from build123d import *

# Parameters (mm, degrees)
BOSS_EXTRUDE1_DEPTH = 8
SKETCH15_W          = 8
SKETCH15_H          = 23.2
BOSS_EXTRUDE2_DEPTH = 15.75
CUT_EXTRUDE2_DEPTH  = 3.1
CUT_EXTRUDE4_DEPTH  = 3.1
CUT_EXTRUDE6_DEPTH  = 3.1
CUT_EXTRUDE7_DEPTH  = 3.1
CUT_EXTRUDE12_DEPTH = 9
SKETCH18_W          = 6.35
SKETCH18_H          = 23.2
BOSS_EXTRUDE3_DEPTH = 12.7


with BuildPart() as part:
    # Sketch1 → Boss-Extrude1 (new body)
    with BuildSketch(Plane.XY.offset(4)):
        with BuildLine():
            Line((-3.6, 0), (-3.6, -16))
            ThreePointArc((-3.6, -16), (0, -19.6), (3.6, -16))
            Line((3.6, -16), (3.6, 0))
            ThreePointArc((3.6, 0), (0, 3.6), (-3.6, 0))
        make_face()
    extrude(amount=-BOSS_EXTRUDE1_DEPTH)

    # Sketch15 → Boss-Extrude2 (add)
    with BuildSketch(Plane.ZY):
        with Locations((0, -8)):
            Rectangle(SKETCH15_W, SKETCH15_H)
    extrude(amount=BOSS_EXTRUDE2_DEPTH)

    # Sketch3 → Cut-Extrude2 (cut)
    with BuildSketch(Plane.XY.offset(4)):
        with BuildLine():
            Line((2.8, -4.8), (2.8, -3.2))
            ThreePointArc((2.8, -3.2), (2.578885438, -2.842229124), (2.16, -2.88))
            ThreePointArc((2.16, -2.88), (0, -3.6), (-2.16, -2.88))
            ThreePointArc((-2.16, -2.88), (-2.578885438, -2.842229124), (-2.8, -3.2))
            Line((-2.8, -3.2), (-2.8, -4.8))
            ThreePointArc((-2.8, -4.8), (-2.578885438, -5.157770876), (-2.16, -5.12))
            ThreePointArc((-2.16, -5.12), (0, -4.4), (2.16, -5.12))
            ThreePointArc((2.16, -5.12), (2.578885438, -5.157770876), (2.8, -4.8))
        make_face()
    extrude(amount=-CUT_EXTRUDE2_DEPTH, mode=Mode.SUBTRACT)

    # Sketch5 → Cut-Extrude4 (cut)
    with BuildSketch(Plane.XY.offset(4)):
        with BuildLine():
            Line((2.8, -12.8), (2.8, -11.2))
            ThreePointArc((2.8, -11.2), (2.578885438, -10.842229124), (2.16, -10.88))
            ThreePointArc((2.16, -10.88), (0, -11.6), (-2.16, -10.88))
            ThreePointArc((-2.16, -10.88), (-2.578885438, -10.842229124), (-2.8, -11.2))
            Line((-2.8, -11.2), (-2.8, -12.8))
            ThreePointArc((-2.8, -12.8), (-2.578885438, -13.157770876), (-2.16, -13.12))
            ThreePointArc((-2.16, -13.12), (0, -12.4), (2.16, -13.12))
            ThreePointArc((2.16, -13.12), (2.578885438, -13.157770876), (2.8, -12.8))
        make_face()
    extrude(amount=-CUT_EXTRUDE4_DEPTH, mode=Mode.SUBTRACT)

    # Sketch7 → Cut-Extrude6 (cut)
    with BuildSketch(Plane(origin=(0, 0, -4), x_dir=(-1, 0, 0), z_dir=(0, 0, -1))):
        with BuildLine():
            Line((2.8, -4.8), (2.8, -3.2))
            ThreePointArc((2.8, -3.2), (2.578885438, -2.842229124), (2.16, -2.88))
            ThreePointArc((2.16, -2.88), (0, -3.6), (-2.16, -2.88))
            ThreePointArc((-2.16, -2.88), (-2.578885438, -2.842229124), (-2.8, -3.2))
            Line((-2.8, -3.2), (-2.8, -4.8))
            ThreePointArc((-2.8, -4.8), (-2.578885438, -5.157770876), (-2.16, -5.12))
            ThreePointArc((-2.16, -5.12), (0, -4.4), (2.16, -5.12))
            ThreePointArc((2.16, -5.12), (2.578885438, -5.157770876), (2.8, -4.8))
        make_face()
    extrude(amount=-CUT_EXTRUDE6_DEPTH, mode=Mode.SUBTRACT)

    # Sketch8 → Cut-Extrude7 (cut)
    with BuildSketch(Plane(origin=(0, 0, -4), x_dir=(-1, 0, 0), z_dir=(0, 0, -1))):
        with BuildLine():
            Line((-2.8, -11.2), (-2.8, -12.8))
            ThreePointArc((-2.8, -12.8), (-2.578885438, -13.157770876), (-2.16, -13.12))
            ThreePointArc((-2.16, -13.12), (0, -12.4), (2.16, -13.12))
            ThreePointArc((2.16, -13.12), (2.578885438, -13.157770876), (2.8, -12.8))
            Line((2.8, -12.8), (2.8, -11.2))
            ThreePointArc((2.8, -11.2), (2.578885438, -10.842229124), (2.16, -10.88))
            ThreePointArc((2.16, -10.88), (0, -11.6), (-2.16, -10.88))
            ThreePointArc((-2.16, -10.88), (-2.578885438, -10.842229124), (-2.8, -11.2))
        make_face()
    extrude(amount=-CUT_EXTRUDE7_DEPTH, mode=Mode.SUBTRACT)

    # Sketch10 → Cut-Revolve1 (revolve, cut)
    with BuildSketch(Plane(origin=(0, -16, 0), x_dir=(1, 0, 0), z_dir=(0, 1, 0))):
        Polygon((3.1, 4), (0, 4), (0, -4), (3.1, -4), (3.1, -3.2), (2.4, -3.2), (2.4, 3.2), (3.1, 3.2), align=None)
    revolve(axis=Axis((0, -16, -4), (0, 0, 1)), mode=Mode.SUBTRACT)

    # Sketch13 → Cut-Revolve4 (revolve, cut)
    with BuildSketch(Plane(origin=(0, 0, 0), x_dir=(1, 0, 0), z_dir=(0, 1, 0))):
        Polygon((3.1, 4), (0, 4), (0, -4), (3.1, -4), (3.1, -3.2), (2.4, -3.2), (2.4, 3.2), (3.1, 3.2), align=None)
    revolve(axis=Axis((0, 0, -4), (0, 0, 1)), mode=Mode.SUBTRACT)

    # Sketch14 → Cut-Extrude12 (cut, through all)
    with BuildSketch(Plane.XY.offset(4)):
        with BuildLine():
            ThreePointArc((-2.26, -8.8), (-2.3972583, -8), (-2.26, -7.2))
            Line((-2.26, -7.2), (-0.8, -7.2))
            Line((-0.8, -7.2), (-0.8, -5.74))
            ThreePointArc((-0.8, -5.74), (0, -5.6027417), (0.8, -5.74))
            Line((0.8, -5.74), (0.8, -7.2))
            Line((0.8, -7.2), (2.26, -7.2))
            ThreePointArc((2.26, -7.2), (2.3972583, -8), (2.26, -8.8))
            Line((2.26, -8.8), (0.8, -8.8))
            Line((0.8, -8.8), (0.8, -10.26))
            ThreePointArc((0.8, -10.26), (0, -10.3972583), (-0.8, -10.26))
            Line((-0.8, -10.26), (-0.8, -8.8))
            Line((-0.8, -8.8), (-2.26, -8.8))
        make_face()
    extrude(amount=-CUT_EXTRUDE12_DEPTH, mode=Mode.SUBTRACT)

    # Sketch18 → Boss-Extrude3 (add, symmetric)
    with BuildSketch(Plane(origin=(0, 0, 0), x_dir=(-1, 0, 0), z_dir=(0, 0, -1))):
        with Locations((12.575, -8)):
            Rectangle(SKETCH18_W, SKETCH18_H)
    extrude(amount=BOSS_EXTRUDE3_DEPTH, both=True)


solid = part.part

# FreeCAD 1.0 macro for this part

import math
import FreeCAD as App
import Part
import Sketcher

V = App.Vector
Q = App.Units.Quantity

doc = App.newDocument("Part")
params = doc.addObject("Spreadsheet::Sheet", "Params")
for row, (alias, value) in enumerate([
    ("sketch1_radius", "3.6 mm"),
    ("sketch1_height", "16 mm"),
    ("pad1_length", "8 mm"),
    ("sketch2_height", "8 mm"),
    ("sketch2_width", "23.2 mm"),
    ("pad2_length", "15.75 mm"),
    ("sketch3_radius", "0.4 mm"),
    ("sketch3_radius2", "3.6 mm"),
    ("sketch3_height", "1.6 mm"),
    ("pocket1_length", "3.1 mm"),
    ("sketch4_radius", "0.4 mm"),
    ("sketch4_radius2", "3.6 mm"),
    ("sketch4_height", "1.6 mm"),
    ("pocket2_length", "3.1 mm"),
    ("sketch5_radius", "0.4 mm"),
    ("sketch5_radius2", "3.6 mm"),
    ("sketch5_height", "1.6 mm"),
    ("pocket3_length", "3.1 mm"),
    ("sketch6_radius", "0.4 mm"),
    ("sketch6_radius2", "3.6 mm"),
    ("sketch6_height", "1.6 mm"),
    ("pocket4_length", "3.1 mm"),
    ("sketch7_height", "8 mm"),
    ("sketch7_width", "3.1 mm"),
    ("sketch7_width2", "0.7 mm"),
    ("sketch7_height2", "0.8 mm"),
    ("groove_angle", "360 deg"),
    ("sketch8_height", "8 mm"),
    ("sketch8_width", "3.1 mm"),
    ("sketch8_width2", "0.7 mm"),
    ("sketch8_height2", "0.8 mm"),
    ("groove2_angle", "360 deg"),
    ("sketch9_radius", "2.4 mm"),
    ("sketch9_width", "1.46 mm"),
    ("sketch10_height", "23.2 mm"),
    ("sketch10_width", "6.35 mm"),
    ("pad3_length", "25.4 mm"),
], start=1):
    params.set(f"A{row}", alias)
    params.set(f"B{row}", "=" + value)
    params.setAlias(f"B{row}", alias)

body = doc.addObject("PartDesign::Body", "Body")

# Sketch on XY plane
sketch1 = doc.addObject("Sketcher::SketchObject", "Sketch")
body.addObject(sketch1)
sketch1.AttachmentSupport = (doc.XY_Plane, [""])
sketch1.MapMode = "FlatFace"
sketch1.AttachmentOffset = App.Placement(V(0, 0, 4), App.Rotation())
sketch1.addGeometry([
    Part.LineSegment(V(-3.6, 0, 0), V(-3.6, -16, 0)),
    Part.ArcOfCircle(Part.Circle(V(0, -16, 0), V(0, 0, 1), 3.6), math.radians(180), math.radians(360)),
    Part.LineSegment(V(3.6, -16, 0), V(3.6, 0, 0)),
    Part.ArcOfCircle(Part.Circle(V(0, 0, 0), V(0, 0, 1), 3.6), math.radians(0), math.radians(180)),
], False)
sketch1.addConstraint([
    Sketcher.Constraint("Tangent", 0, 2, 1, 1),
    Sketcher.Constraint("Tangent", 1, 2, 2, 1),
    Sketcher.Constraint("Tangent", 2, 2, 3, 1),
    Sketcher.Constraint("Tangent", 3, 2, 0, 1),
    Sketcher.Constraint("Vertical", 0),
    Sketcher.Constraint("Vertical", 2),
    Sketcher.Constraint("Coincident", 3, 3, -1, 1),
    Sketcher.Constraint("Radius", 1, Q("3.6 mm")),
    Sketcher.Constraint("DistanceY", 0, 2, 0, 1, Q("16 mm")),
])
sketch1.setExpression("Constraints[7]", "Params.sketch1_radius")
sketch1.setExpression("Constraints[8]", "Params.sketch1_height")
pad1 = doc.addObject("PartDesign::Pad", "Pad")
body.addObject(pad1)
pad1.Profile = sketch1
pad1.setExpression("Length", "Params.pad1_length")
pad1.Reversed = True

# Sketch on YZ plane
sketch2 = doc.addObject("Sketcher::SketchObject", "Sketch001")
body.addObject(sketch2)
sketch2.AttachmentSupport = (doc.YZ_Plane, [""])
sketch2.MapMode = "FlatFace"
sketch2.addGeometry([
    Part.LineSegment(V(3.6, -4, 0), V(-19.6, -4, 0)),
    Part.LineSegment(V(-19.6, -4, 0), V(-19.6, 4, 0)),
    Part.LineSegment(V(-19.6, 4, 0), V(3.6, 4, 0)),
    Part.LineSegment(V(3.6, 4, 0), V(3.6, -4, 0)),
], False)
sketch2.addConstraint([
    Sketcher.Constraint("Coincident", 0, 2, 1, 1),
    Sketcher.Constraint("Coincident", 1, 2, 2, 1),
    Sketcher.Constraint("Coincident", 2, 2, 3, 1),
    Sketcher.Constraint("Coincident", 3, 2, 0, 1),
    Sketcher.Constraint("Horizontal", 0),
    Sketcher.Constraint("Vertical", 1),
    Sketcher.Constraint("Horizontal", 2),
    Sketcher.Constraint("Vertical", 3),
    Sketcher.Constraint("DistanceY", 1, 1, 1, 2, Q("8 mm")),
    Sketcher.Constraint("DistanceX", 0, 2, 0, 1, Q("23.2 mm")),
    Sketcher.Constraint("DistanceY", 0, 2, -1, 1, Q("4 mm")),
    Sketcher.Constraint("DistanceX", 0, 2, -1, 1, Q("19.6 mm")),
])
sketch2.setExpression("Constraints[8]", "Params.sketch2_height")
sketch2.setExpression("Constraints[9]", "Params.sketch2_width")
pad2 = doc.addObject("PartDesign::Pad", "Pad001")
body.addObject(pad2)
pad2.Profile = sketch2
pad2.setExpression("Length", "Params.pad2_length")
pad2.Reversed = True

# Sketch on XY plane
sketch3 = doc.addObject("Sketcher::SketchObject", "Sketch002")
body.addObject(sketch3)
sketch3.AttachmentSupport = (doc.XY_Plane, [""])
sketch3.MapMode = "FlatFace"
sketch3.AttachmentOffset = App.Placement(V(0, 0, 4), App.Rotation())
sketch3.addGeometry([
    Part.LineSegment(V(2.8, -4.8, 0), V(2.8, -3.2, 0)),  # 0
    Part.ArcOfCircle(Part.Circle(V(2.4, -3.2, 0), V(0, 0, 1), 0.4), math.radians(0), math.radians(126.869898)),  # 1
    Part.ArcOfCircle(Part.Circle(V(0, 0, 0), V(0, 0, 1), 3.6), math.radians(-126.869898), math.radians(-53.130102)),  # 2
    Part.ArcOfCircle(Part.Circle(V(-2.4, -3.2, 0), V(0, 0, 1), 0.4), math.radians(53.130102), math.radians(180)),  # 3
    Part.LineSegment(V(-2.8, -3.2, 0), V(-2.8, -4.8, 0)),  # 4
    Part.ArcOfCircle(Part.Circle(V(-2.4, -4.8, 0), V(0, 0, 1), 0.4), math.radians(-180), math.radians(-53.130102)),  # 5
    Part.ArcOfCircle(Part.Circle(V(0, -8, 0), V(0, 0, 1), 3.6), math.radians(53.130102), math.radians(126.869898)),  # 6
    Part.ArcOfCircle(Part.Circle(V(2.4, -4.8, 0), V(0, 0, 1), 0.4), math.radians(-126.869898), math.radians(0)),  # 7
], False)
sketch3.addConstraint([
    Sketcher.Constraint("Tangent", 0, 2, 1, 1),
    Sketcher.Constraint("Tangent", 1, 2, 2, 2),
    Sketcher.Constraint("Tangent", 2, 1, 3, 1),
    Sketcher.Constraint("Tangent", 3, 2, 4, 1),
    Sketcher.Constraint("Tangent", 4, 2, 5, 1),
    Sketcher.Constraint("Tangent", 5, 2, 6, 2),
    Sketcher.Constraint("Tangent", 6, 1, 7, 1),
    Sketcher.Constraint("Tangent", 7, 2, 0, 1),
    Sketcher.Constraint("Vertical", 0),
    Sketcher.Constraint("Vertical", 4),
    Sketcher.Constraint("Coincident", 2, 3, -1, 1),
    Sketcher.Constraint("Equal", 1, 3),
    Sketcher.Constraint("Equal", 3, 5),
    Sketcher.Constraint("Equal", 2, 6),
    Sketcher.Constraint("Equal", 5, 7),
    Sketcher.Constraint("Symmetric", 5, 3, 7, 3, -2),
    Sketcher.Constraint("Radius", 1, Q("0.4 mm")),
    Sketcher.Constraint("Radius", 2, Q("3.6 mm")),
    Sketcher.Constraint("DistanceY", 0, 1, 0, 2, Q("1.6 mm")),
    Sketcher.Constraint("DistanceY", 6, 3, -1, 1, Q("8 mm")),
])
sketch3.setExpression("Constraints[16]", "Params.sketch3_radius")
sketch3.setExpression("Constraints[17]", "Params.sketch3_radius2")
sketch3.setExpression("Constraints[18]", "Params.sketch3_height")
pocket1 = doc.addObject("PartDesign::Pocket", "Pocket")
body.addObject(pocket1)
pocket1.Profile = sketch3
pocket1.setExpression("Length", "Params.pocket1_length")

# Sketch on XY plane
sketch4 = doc.addObject("Sketcher::SketchObject", "Sketch003")
body.addObject(sketch4)
sketch4.AttachmentSupport = (doc.XY_Plane, [""])
sketch4.MapMode = "FlatFace"
sketch4.AttachmentOffset = App.Placement(V(0, 0, 4), App.Rotation())
sketch4.addGeometry([
    Part.LineSegment(V(2.8, -12.8, 0), V(2.8, -11.2, 0)),  # 0
    Part.ArcOfCircle(Part.Circle(V(2.4, -11.2, 0), V(0, 0, 1), 0.4), math.radians(0), math.radians(126.869898)),  # 1
    Part.ArcOfCircle(Part.Circle(V(0, -8, 0), V(0, 0, 1), 3.6), math.radians(-126.869898), math.radians(-53.130102)),  # 2
    Part.ArcOfCircle(Part.Circle(V(-2.4, -11.2, 0), V(0, 0, 1), 0.4), math.radians(53.130102), math.radians(180)),  # 3
    Part.LineSegment(V(-2.8, -11.2, 0), V(-2.8, -12.8, 0)),  # 4
    Part.ArcOfCircle(Part.Circle(V(-2.4, -12.8, 0), V(0, 0, 1), 0.4), math.radians(-180), math.radians(-53.130102)),  # 5
    Part.ArcOfCircle(Part.Circle(V(0, -16, 0), V(0, 0, 1), 3.6), math.radians(53.130102), math.radians(126.869898)),  # 6
    Part.ArcOfCircle(Part.Circle(V(2.4, -12.8, 0), V(0, 0, 1), 0.4), math.radians(-126.869898), math.radians(0)),  # 7
], False)
sketch4.addConstraint([
    Sketcher.Constraint("Tangent", 0, 2, 1, 1),
    Sketcher.Constraint("Tangent", 1, 2, 2, 2),
    Sketcher.Constraint("Tangent", 2, 1, 3, 1),
    Sketcher.Constraint("Tangent", 3, 2, 4, 1),
    Sketcher.Constraint("Tangent", 4, 2, 5, 1),
    Sketcher.Constraint("Tangent", 5, 2, 6, 2),
    Sketcher.Constraint("Tangent", 6, 1, 7, 1),
    Sketcher.Constraint("Tangent", 7, 2, 0, 1),
    Sketcher.Constraint("Vertical", 0),
    Sketcher.Constraint("Vertical", 4),
    Sketcher.Constraint("Equal", 1, 3),
    Sketcher.Constraint("Equal", 3, 5),
    Sketcher.Constraint("Equal", 2, 6),
    Sketcher.Constraint("Equal", 5, 7),
    Sketcher.Constraint("Symmetric", 1, 3, 3, 3, -2),
    Sketcher.Constraint("PointOnObject", 6, 3, -2),
    Sketcher.Constraint("Radius", 1, Q("0.4 mm")),
    Sketcher.Constraint("Radius", 2, Q("3.6 mm")),
    Sketcher.Constraint("DistanceY", 0, 1, 0, 2, Q("1.6 mm")),
    Sketcher.Constraint("DistanceY", 2, 3, -1, 1, Q("8 mm")),
    Sketcher.Constraint("DistanceY", 6, 3, -1, 1, Q("16 mm")),
])
sketch4.setExpression("Constraints[16]", "Params.sketch4_radius")
sketch4.setExpression("Constraints[17]", "Params.sketch4_radius2")
sketch4.setExpression("Constraints[18]", "Params.sketch4_height")
pocket2 = doc.addObject("PartDesign::Pocket", "Pocket001")
body.addObject(pocket2)
pocket2.Profile = sketch4
pocket2.setExpression("Length", "Params.pocket2_length")

# Sketch on XY plane
sketch5 = doc.addObject("Sketcher::SketchObject", "Sketch004")
body.addObject(sketch5)
sketch5.AttachmentSupport = (doc.XY_Plane, [""])
sketch5.MapMode = "FlatFace"
sketch5.AttachmentOffset = App.Placement(V(0, 0, -4), App.Rotation())
sketch5.addGeometry([
    Part.LineSegment(V(-2.8, -4.8, 0), V(-2.8, -3.2, 0)),  # 0
    Part.ArcOfCircle(Part.Circle(V(-2.4, -3.2, 0), V(0, 0, 1), 0.4), math.radians(53.130102), math.radians(180)),  # 1
    Part.ArcOfCircle(Part.Circle(V(0, 0, 0), V(0, 0, 1), 3.6), math.radians(-126.869898), math.radians(-53.130102)),  # 2
    Part.ArcOfCircle(Part.Circle(V(2.4, -3.2, 0), V(0, 0, 1), 0.4), math.radians(0), math.radians(126.869898)),  # 3
    Part.LineSegment(V(2.8, -3.2, 0), V(2.8, -4.8, 0)),  # 4
    Part.ArcOfCircle(Part.Circle(V(2.4, -4.8, 0), V(0, 0, 1), 0.4), math.radians(-126.869898), math.radians(0)),  # 5
    Part.ArcOfCircle(Part.Circle(V(0, -8, 0), V(0, 0, 1), 3.6), math.radians(53.130102), math.radians(126.869898)),  # 6
    Part.ArcOfCircle(Part.Circle(V(-2.4, -4.8, 0), V(0, 0, 1), 0.4), math.radians(-180), math.radians(-53.130102)),  # 7
], False)
sketch5.addConstraint([
    Sketcher.Constraint("Tangent", 0, 2, 1, 2),
    Sketcher.Constraint("Tangent", 1, 1, 2, 1),
    Sketcher.Constraint("Tangent", 2, 2, 3, 2),
    Sketcher.Constraint("Tangent", 3, 1, 4, 1),
    Sketcher.Constraint("Tangent", 4, 2, 5, 2),
    Sketcher.Constraint("Tangent", 5, 1, 6, 1),
    Sketcher.Constraint("Tangent", 6, 2, 7, 2),
    Sketcher.Constraint("Tangent", 7, 1, 0, 1),
    Sketcher.Constraint("Vertical", 0),
    Sketcher.Constraint("Vertical", 4),
    Sketcher.Constraint("Coincident", 2, 3, -1, 1),
    Sketcher.Constraint("Equal", 1, 3),
    Sketcher.Constraint("Equal", 3, 5),
    Sketcher.Constraint("Equal", 2, 6),
    Sketcher.Constraint("Equal", 5, 7),
    Sketcher.Constraint("Symmetric", 5, 3, 7, 3, -2),
    Sketcher.Constraint("Radius", 1, Q("0.4 mm")),
    Sketcher.Constraint("Radius", 2, Q("3.6 mm")),
    Sketcher.Constraint("DistanceY", 0, 1, 0, 2, Q("1.6 mm")),
    Sketcher.Constraint("DistanceY", 6, 3, -1, 1, Q("8 mm")),
])
sketch5.setExpression("Constraints[16]", "Params.sketch5_radius")
sketch5.setExpression("Constraints[17]", "Params.sketch5_radius2")
sketch5.setExpression("Constraints[18]", "Params.sketch5_height")
pocket3 = doc.addObject("PartDesign::Pocket", "Pocket002")
body.addObject(pocket3)
pocket3.Profile = sketch5
pocket3.setExpression("Length", "Params.pocket3_length")
pocket3.Reversed = True

# Sketch on XY plane
sketch6 = doc.addObject("Sketcher::SketchObject", "Sketch005")
body.addObject(sketch6)
sketch6.AttachmentSupport = (doc.XY_Plane, [""])
sketch6.MapMode = "FlatFace"
sketch6.AttachmentOffset = App.Placement(V(0, 0, -4), App.Rotation())
sketch6.addGeometry([
    Part.LineSegment(V(2.8, -11.2, 0), V(2.8, -12.8, 0)),  # 0
    Part.ArcOfCircle(Part.Circle(V(2.4, -12.8, 0), V(0, 0, 1), 0.4), math.radians(-126.869898), math.radians(0)),  # 1
    Part.ArcOfCircle(Part.Circle(V(0, -16, 0), V(0, 0, 1), 3.6), math.radians(53.130102), math.radians(126.869898)),  # 2
    Part.ArcOfCircle(Part.Circle(V(-2.4, -12.8, 0), V(0, 0, 1), 0.4), math.radians(-180), math.radians(-53.130102)),  # 3
    Part.LineSegment(V(-2.8, -12.8, 0), V(-2.8, -11.2, 0)),  # 4
    Part.ArcOfCircle(Part.Circle(V(-2.4, -11.2, 0), V(0, 0, 1), 0.4), math.radians(53.130102), math.radians(180)),  # 5
    Part.ArcOfCircle(Part.Circle(V(0, -8, 0), V(0, 0, 1), 3.6), math.radians(-126.869898), math.radians(-53.130102)),  # 6
    Part.ArcOfCircle(Part.Circle(V(2.4, -11.2, 0), V(0, 0, 1), 0.4), math.radians(0), math.radians(126.869898)),  # 7
], False)
sketch6.addConstraint([
    Sketcher.Constraint("Tangent", 0, 2, 1, 2),
    Sketcher.Constraint("Tangent", 1, 1, 2, 1),
    Sketcher.Constraint("Tangent", 2, 2, 3, 2),
    Sketcher.Constraint("Tangent", 3, 1, 4, 1),
    Sketcher.Constraint("Tangent", 4, 2, 5, 2),
    Sketcher.Constraint("Tangent", 5, 1, 6, 1),
    Sketcher.Constraint("Tangent", 6, 2, 7, 2),
    Sketcher.Constraint("Tangent", 7, 1, 0, 1),
    Sketcher.Constraint("Vertical", 0),
    Sketcher.Constraint("Vertical", 4),
    Sketcher.Constraint("Equal", 1, 3),
    Sketcher.Constraint("Equal", 3, 5),
    Sketcher.Constraint("Equal", 2, 6),
    Sketcher.Constraint("Equal", 5, 7),
    Sketcher.Constraint("Symmetric", 1, 3, 3, 3, -2),
    Sketcher.Constraint("PointOnObject", 6, 3, -2),
    Sketcher.Constraint("Radius", 1, Q("0.4 mm")),
    Sketcher.Constraint("Radius", 2, Q("3.6 mm")),
    Sketcher.Constraint("DistanceY", 0, 2, 0, 1, Q("1.6 mm")),
    Sketcher.Constraint("DistanceY", 2, 3, -1, 1, Q("16 mm")),
    Sketcher.Constraint("DistanceY", 6, 3, -1, 1, Q("8 mm")),
])
sketch6.setExpression("Constraints[16]", "Params.sketch6_radius")
sketch6.setExpression("Constraints[17]", "Params.sketch6_radius2")
sketch6.setExpression("Constraints[18]", "Params.sketch6_height")
pocket4 = doc.addObject("PartDesign::Pocket", "Pocket003")
body.addObject(pocket4)
pocket4.Profile = sketch6
pocket4.setExpression("Length", "Params.pocket4_length")
pocket4.Reversed = True

# Sketch on XZ plane
sketch7 = doc.addObject("Sketcher::SketchObject", "Sketch006")
body.addObject(sketch7)
sketch7.AttachmentSupport = (doc.XZ_Plane, [""])
sketch7.MapMode = "FlatFace"
sketch7.AttachmentOffset = App.Placement(V(0, 0, 16), App.Rotation())
sketch7.addGeometry([
    Part.LineSegment(V(3.1, -4, 0), V(0, -4, 0)),  # 0
    Part.LineSegment(V(0, -4, 0), V(0, 4, 0)),  # 1
    Part.LineSegment(V(0, 4, 0), V(3.1, 4, 0)),  # 2
    Part.LineSegment(V(3.1, 4, 0), V(3.1, 3.2, 0)),  # 3
    Part.LineSegment(V(3.1, 3.2, 0), V(2.4, 3.2, 0)),  # 4
    Part.LineSegment(V(2.4, 3.2, 0), V(2.4, -3.2, 0)),  # 5
    Part.LineSegment(V(2.4, -3.2, 0), V(3.1, -3.2, 0)),  # 6
    Part.LineSegment(V(3.1, -3.2, 0), V(3.1, -4, 0)),  # 7
], False)
sketch7.addConstraint([
    Sketcher.Constraint("Coincident", 0, 2, 1, 1),
    Sketcher.Constraint("Coincident", 1, 2, 2, 1),
    Sketcher.Constraint("Coincident", 2, 2, 3, 1),
    Sketcher.Constraint("Coincident", 3, 2, 4, 1),
    Sketcher.Constraint("Coincident", 4, 2, 5, 1),
    Sketcher.Constraint("Coincident", 5, 2, 6, 1),
    Sketcher.Constraint("Coincident", 6, 2, 7, 1),
    Sketcher.Constraint("Coincident", 7, 2, 0, 1),
    Sketcher.Constraint("Horizontal", 0),
    Sketcher.Constraint("Vertical", 1),
    Sketcher.Constraint("Horizontal", 2),
    Sketcher.Constraint("Vertical", 3),
    Sketcher.Constraint("Horizontal", 4),
    Sketcher.Constraint("Vertical", 5),
    Sketcher.Constraint("Horizontal", 6),
    Sketcher.Constraint("Vertical", 7),
    Sketcher.Constraint("Symmetric", 0, 2, 1, 2, -1, 1),
    Sketcher.Constraint("Symmetric", 3, 2, 6, 2, -1),
    Sketcher.Constraint("DistanceY", 1, 1, 1, 2, Q("8 mm")),
    Sketcher.Constraint("DistanceX", 0, 2, 0, 1, Q("3.1 mm")),
    Sketcher.Constraint("DistanceX", 4, 2, 4, 1, Q("0.7 mm")),
    Sketcher.Constraint("DistanceY", 3, 2, 3, 1, Q("0.8 mm")),
])
sketch7.setExpression("Constraints[18]", "Params.sketch7_height")
sketch7.setExpression("Constraints[19]", "Params.sketch7_width")
sketch7.setExpression("Constraints[20]", "Params.sketch7_width2")
sketch7.setExpression("Constraints[21]", "Params.sketch7_height2")
groove = doc.addObject("PartDesign::Groove", "Groove")
body.addObject(groove)
groove.Profile = sketch7
groove.ReferenceAxis = (sketch7, ["V_Axis"])
groove.setExpression("Angle", "Params.groove_angle")

# Sketch on XZ plane
sketch8 = doc.addObject("Sketcher::SketchObject", "Sketch007")
body.addObject(sketch8)
sketch8.AttachmentSupport = (doc.XZ_Plane, [""])
sketch8.MapMode = "FlatFace"
sketch8.addGeometry([
    Part.LineSegment(V(3.1, -4, 0), V(0, -4, 0)),  # 0
    Part.LineSegment(V(0, -4, 0), V(0, 4, 0)),  # 1
    Part.LineSegment(V(0, 4, 0), V(3.1, 4, 0)),  # 2
    Part.LineSegment(V(3.1, 4, 0), V(3.1, 3.2, 0)),  # 3
    Part.LineSegment(V(3.1, 3.2, 0), V(2.4, 3.2, 0)),  # 4
    Part.LineSegment(V(2.4, 3.2, 0), V(2.4, -3.2, 0)),  # 5
    Part.LineSegment(V(2.4, -3.2, 0), V(3.1, -3.2, 0)),  # 6
    Part.LineSegment(V(3.1, -3.2, 0), V(3.1, -4, 0)),  # 7
], False)
sketch8.addConstraint([
    Sketcher.Constraint("Coincident", 0, 2, 1, 1),
    Sketcher.Constraint("Coincident", 1, 2, 2, 1),
    Sketcher.Constraint("Coincident", 2, 2, 3, 1),
    Sketcher.Constraint("Coincident", 3, 2, 4, 1),
    Sketcher.Constraint("Coincident", 4, 2, 5, 1),
    Sketcher.Constraint("Coincident", 5, 2, 6, 1),
    Sketcher.Constraint("Coincident", 6, 2, 7, 1),
    Sketcher.Constraint("Coincident", 7, 2, 0, 1),
    Sketcher.Constraint("Horizontal", 0),
    Sketcher.Constraint("Vertical", 1),
    Sketcher.Constraint("Horizontal", 2),
    Sketcher.Constraint("Vertical", 3),
    Sketcher.Constraint("Horizontal", 4),
    Sketcher.Constraint("Vertical", 5),
    Sketcher.Constraint("Horizontal", 6),
    Sketcher.Constraint("Vertical", 7),
    Sketcher.Constraint("Symmetric", 0, 2, 1, 2, -1, 1),
    Sketcher.Constraint("Symmetric", 3, 2, 6, 2, -1),
    Sketcher.Constraint("DistanceY", 1, 1, 1, 2, Q("8 mm")),
    Sketcher.Constraint("DistanceX", 0, 2, 0, 1, Q("3.1 mm")),
    Sketcher.Constraint("DistanceX", 4, 2, 4, 1, Q("0.7 mm")),
    Sketcher.Constraint("DistanceY", 3, 2, 3, 1, Q("0.8 mm")),
])
sketch8.setExpression("Constraints[18]", "Params.sketch8_height")
sketch8.setExpression("Constraints[19]", "Params.sketch8_width")
sketch8.setExpression("Constraints[20]", "Params.sketch8_width2")
sketch8.setExpression("Constraints[21]", "Params.sketch8_height2")
groove2 = doc.addObject("PartDesign::Groove", "Groove001")
body.addObject(groove2)
groove2.Profile = sketch8
groove2.ReferenceAxis = (sketch8, ["V_Axis"])
groove2.setExpression("Angle", "Params.groove2_angle")

# Sketch on XY plane
sketch9 = doc.addObject("Sketcher::SketchObject", "Sketch008")
body.addObject(sketch9)
sketch9.AttachmentSupport = (doc.XY_Plane, [""])
sketch9.MapMode = "FlatFace"
sketch9.AttachmentOffset = App.Placement(V(0, 0, 4), App.Rotation())
sketch9.addGeometry([
    Part.ArcOfCircle(Part.Circle(V(0.002742, -8, 0), V(0, 0, 1), 2.4), math.radians(160.528779), math.radians(199.471221)),  # 0
    Part.LineSegment(V(-2.26, -8.8, 0), V(-0.8, -8.8, 0)),  # 1
    Part.LineSegment(V(-0.8, -8.8, 0), V(-0.8, -10.26, 0)),  # 2
    Part.ArcOfCircle(Part.Circle(V(0, -7.997258, 0), V(0, 0, 1), 2.4), math.radians(-109.471221), math.radians(-70.528779)),  # 3
    Part.LineSegment(V(0.8, -10.26, 0), V(0.8, -8.8, 0)),  # 4
    Part.LineSegment(V(0.8, -8.8, 0), V(2.26, -8.8, 0)),  # 5
    Part.ArcOfCircle(Part.Circle(V(-0.002742, -8, 0), V(0, 0, 1), 2.4), math.radians(-19.471221), math.radians(19.471221)),  # 6
    Part.LineSegment(V(2.26, -7.2, 0), V(0.8, -7.2, 0)),  # 7
    Part.LineSegment(V(0.8, -7.2, 0), V(0.8, -5.74, 0)),  # 8
    Part.ArcOfCircle(Part.Circle(V(0, -8.002742, 0), V(0, 0, 1), 2.4), math.radians(70.528779), math.radians(109.471221)),  # 9
    Part.LineSegment(V(-0.8, -5.74, 0), V(-0.8, -7.2, 0)),  # 10
    Part.LineSegment(V(-0.8, -7.2, 0), V(-2.26, -7.2, 0)),  # 11
], False)
sketch9.addConstraint([
    Sketcher.Constraint("Coincident", 0, 2, 1, 1),
    Sketcher.Constraint("Coincident", 1, 2, 2, 1),
    Sketcher.Constraint("Coincident", 2, 2, 3, 1),
    Sketcher.Constraint("Coincident", 3, 2, 4, 1),
    Sketcher.Constraint("Coincident", 4, 2, 5, 1),
    Sketcher.Constraint("Coincident", 5, 2, 6, 1),
    Sketcher.Constraint("Coincident", 6, 2, 7, 1),
    Sketcher.Constraint("Coincident", 7, 2, 8, 1),
    Sketcher.Constraint("Coincident", 8, 2, 9, 1),
    Sketcher.Constraint("Coincident", 9, 2, 10, 1),
    Sketcher.Constraint("Coincident", 10, 2, 11, 1),
    Sketcher.Constraint("Coincident", 11, 2, 0, 1),
    Sketcher.Constraint("Horizontal", 1),
    Sketcher.Constraint("Vertical", 2),
    Sketcher.Constraint("Vertical", 4),
    Sketcher.Constraint("Horizontal", 5),
    Sketcher.Constraint("Horizontal", 7),
    Sketcher.Constraint("Vertical", 8),
    Sketcher.Constraint("Vertical", 10),
    Sketcher.Constraint("Horizontal", 11),
    Sketcher.Constraint("Equal", 0, 3),
    Sketcher.Constraint("Equal", 3, 6),
    Sketcher.Constraint("Equal", 6, 9),
    Sketcher.Constraint("Symmetric", 0, 3, 6, 3, -2),
    Sketcher.Constraint("Symmetric", 2, 2, 3, 2, -2),
    Sketcher.Constraint("Symmetric", 8, 2, 9, 2, -2),
    Sketcher.Constraint("Horizontal", 1, 2, 4, 2),
    Sketcher.Constraint("Horizontal", 7, 2, 10, 2),
    Sketcher.Constraint("Vertical", 5, 2, 6, 2),
    Sketcher.Constraint("Vertical", 4, 2, 7, 2),
    Sketcher.Constraint("Equal", 11, 2),
    Sketcher.Constraint("Equal", 4, 8),
    Sketcher.Constraint("Radius", 0, Q("2.4 mm")),
    Sketcher.Constraint("DistanceY", 0, 3, -1, 1, Q("8 mm")),
    Sketcher.Constraint("DistanceX", 1, 1, 1, 2, Q("1.46 mm")),
    Sketcher.Constraint("DistanceY", 0, 2, -1, 1, Q("8.8 mm")),
    Sketcher.Constraint("DistanceX", 1, 2, -1, 1, Q("0.8 mm")),
])
sketch9.setExpression("Constraints[32]", "Params.sketch9_radius")
sketch9.setExpression("Constraints[34]", "Params.sketch9_width")
pocket5 = doc.addObject("PartDesign::Pocket", "Pocket004")
body.addObject(pocket5)
pocket5.Profile = sketch9
pocket5.Type = "ThroughAll"

# Sketch on XY plane
sketch10 = doc.addObject("Sketcher::SketchObject", "Sketch009")
body.addObject(sketch10)
sketch10.AttachmentSupport = (doc.XY_Plane, [""])
sketch10.MapMode = "FlatFace"
sketch10.addGeometry([
    Part.LineSegment(V(-9.4, 3.6, 0), V(-9.4, -19.6, 0)),
    Part.LineSegment(V(-9.4, -19.6, 0), V(-15.75, -19.6, 0)),
    Part.LineSegment(V(-15.75, -19.6, 0), V(-15.75, 3.6, 0)),
    Part.LineSegment(V(-15.75, 3.6, 0), V(-9.4, 3.6, 0)),
], False)
sketch10.addConstraint([
    Sketcher.Constraint("Coincident", 0, 2, 1, 1),
    Sketcher.Constraint("Coincident", 1, 2, 2, 1),
    Sketcher.Constraint("Coincident", 2, 2, 3, 1),
    Sketcher.Constraint("Coincident", 3, 2, 0, 1),
    Sketcher.Constraint("Vertical", 0),
    Sketcher.Constraint("Horizontal", 1),
    Sketcher.Constraint("Vertical", 2),
    Sketcher.Constraint("Horizontal", 3),
    Sketcher.Constraint("DistanceY", 0, 2, 0, 1, Q("23.2 mm")),
    Sketcher.Constraint("DistanceX", 1, 2, 1, 1, Q("6.35 mm")),
    Sketcher.Constraint("DistanceX", 0, 2, -1, 1, Q("9.4 mm")),
    Sketcher.Constraint("DistanceY", 0, 2, -1, 1, Q("19.6 mm")),
])
sketch10.setExpression("Constraints[8]", "Params.sketch10_height")
sketch10.setExpression("Constraints[9]", "Params.sketch10_width")
pad3 = doc.addObject("PartDesign::Pad", "Pad002")
body.addObject(pad3)
pad3.Profile = sketch10
pad3.setExpression("Length", "Params.pad3_length")
pad3.Midplane = True

doc.recompute()
